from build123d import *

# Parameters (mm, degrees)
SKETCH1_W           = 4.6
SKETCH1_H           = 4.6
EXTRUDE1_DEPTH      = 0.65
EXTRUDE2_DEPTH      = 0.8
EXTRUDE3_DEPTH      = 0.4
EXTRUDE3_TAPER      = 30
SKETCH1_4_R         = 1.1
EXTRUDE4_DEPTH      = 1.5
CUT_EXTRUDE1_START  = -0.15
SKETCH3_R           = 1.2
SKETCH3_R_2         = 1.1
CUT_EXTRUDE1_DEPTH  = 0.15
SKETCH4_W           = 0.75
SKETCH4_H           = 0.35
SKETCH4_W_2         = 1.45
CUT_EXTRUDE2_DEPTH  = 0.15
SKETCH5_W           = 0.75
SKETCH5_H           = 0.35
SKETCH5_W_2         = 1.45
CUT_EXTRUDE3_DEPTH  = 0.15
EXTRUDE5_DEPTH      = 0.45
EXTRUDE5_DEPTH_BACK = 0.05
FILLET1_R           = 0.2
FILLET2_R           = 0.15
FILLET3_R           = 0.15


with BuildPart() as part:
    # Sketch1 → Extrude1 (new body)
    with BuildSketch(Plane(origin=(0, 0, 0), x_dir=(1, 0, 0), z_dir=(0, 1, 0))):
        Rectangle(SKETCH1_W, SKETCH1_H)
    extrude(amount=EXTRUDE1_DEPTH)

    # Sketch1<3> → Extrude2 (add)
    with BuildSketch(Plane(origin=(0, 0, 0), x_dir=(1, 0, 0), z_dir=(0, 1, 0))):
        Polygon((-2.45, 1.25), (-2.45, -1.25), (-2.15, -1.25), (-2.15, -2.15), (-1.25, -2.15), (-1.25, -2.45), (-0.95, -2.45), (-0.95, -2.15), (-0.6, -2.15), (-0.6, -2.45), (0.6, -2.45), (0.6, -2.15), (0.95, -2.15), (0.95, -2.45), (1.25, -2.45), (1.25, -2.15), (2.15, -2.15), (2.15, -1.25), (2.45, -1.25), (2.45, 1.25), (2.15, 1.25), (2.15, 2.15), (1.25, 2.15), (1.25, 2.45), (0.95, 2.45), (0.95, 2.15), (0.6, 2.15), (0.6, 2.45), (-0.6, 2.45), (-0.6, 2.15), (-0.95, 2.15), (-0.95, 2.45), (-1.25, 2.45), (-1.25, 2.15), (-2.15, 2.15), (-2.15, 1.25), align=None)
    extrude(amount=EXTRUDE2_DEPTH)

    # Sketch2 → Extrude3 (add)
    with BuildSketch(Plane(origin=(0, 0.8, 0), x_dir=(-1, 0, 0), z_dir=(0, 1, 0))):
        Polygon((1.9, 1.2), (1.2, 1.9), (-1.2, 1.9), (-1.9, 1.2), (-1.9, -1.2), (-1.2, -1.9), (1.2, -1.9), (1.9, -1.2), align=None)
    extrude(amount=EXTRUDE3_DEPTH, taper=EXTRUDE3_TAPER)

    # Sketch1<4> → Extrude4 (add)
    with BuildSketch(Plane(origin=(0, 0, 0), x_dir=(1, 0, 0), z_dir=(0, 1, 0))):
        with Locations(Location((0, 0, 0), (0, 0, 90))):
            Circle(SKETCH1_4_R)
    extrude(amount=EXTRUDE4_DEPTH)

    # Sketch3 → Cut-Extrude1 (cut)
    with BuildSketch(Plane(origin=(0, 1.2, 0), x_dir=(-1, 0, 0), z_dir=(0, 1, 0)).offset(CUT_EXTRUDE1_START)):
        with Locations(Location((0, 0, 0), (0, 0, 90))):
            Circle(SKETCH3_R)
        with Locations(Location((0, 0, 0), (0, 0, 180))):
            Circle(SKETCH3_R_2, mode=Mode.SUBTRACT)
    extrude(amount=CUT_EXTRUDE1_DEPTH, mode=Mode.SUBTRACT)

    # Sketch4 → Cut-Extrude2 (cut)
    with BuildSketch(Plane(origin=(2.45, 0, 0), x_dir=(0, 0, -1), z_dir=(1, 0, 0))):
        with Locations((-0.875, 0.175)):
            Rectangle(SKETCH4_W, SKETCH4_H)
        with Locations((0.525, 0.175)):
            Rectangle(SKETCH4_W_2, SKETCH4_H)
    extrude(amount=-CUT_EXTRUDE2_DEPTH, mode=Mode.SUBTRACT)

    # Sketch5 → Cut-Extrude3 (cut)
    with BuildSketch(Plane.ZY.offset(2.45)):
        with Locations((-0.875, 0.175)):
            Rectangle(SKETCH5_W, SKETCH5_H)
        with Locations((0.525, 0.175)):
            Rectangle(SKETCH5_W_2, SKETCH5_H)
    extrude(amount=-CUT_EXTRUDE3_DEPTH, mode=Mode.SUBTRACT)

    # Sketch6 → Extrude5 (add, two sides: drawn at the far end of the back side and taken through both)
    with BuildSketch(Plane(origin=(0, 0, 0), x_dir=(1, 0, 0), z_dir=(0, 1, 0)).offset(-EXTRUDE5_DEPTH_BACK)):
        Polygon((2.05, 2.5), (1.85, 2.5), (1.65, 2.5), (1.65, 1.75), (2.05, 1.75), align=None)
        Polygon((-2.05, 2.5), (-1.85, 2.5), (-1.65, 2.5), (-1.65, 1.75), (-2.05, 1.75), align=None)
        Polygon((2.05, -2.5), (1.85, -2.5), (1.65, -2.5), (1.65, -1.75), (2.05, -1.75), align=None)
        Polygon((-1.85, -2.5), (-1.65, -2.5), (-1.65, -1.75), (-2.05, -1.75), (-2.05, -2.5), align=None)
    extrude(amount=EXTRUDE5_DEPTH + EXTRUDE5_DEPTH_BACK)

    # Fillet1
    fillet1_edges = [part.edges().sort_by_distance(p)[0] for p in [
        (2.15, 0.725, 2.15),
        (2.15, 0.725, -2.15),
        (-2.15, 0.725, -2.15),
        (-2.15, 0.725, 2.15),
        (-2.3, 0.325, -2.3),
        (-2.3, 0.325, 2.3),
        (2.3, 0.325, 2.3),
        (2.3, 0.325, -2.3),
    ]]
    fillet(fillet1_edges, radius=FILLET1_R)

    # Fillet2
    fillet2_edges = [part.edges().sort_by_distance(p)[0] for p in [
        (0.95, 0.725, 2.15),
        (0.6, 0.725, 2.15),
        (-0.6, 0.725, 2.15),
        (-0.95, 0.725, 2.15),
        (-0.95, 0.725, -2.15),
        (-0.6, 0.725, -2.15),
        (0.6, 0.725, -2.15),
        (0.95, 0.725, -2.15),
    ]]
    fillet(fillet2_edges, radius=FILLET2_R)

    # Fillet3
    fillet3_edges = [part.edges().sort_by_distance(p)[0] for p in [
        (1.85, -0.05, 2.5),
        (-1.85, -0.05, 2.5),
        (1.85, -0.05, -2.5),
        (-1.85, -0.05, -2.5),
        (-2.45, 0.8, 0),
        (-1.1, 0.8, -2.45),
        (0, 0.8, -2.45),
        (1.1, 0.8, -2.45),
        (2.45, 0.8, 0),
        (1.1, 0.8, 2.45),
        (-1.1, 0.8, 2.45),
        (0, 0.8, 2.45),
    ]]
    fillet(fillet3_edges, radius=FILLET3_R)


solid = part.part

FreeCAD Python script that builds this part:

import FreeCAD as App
import Part
import Sketcher

V = App.Vector
Q = App.Units.Quantity


def edges_at(feature, points):
    """Names of the edges that pass closest to the given points."""
    edges = feature.Shape.Edges
    near = lambda p: min(range(len(edges)), key=lambda i: edges[i].distToShape(Part.Vertex(*p))[0])
    return sorted({f"Edge{near(p) + 1}" for p in points})


def add_polygon(sketch, points):
    """Adds a closed chain of lines whose ends are joined by coincident constraints."""
    first, n = sketch.GeometryCount, len(points)
    for a, b in zip(points, points[1:] + points[:1]):
        sketch.addGeometry(Part.LineSegment(App.Vector(*a, 0), App.Vector(*b, 0)), False)
    for i in range(n):
        sketch.addConstraint(Sketcher.Constraint("Coincident", first + i, 2, first + (i + 1) % n, 1))

doc = App.newDocument("Part")
body = doc.addObject("PartDesign::Body", "Body")

# Sketch on XZ plane
sketch1 = body.newObject("Sketcher::SketchObject", "Sketch")
sketch1.AttachmentSupport = (doc.getObject("XZ_Plane"), [""])
sketch1.MapMode = "FlatFace"
add_polygon(sketch1, [(-2.3, -2.3), (-2.3, 2.3), (2.3, 2.3), (2.3, -2.3)])  # lines 0-3
sketch1.addConstraint(Sketcher.Constraint("Vertical", 0))
sketch1.addConstraint(Sketcher.Constraint("Horizontal", 1))
sketch1.addConstraint(Sketcher.Constraint("Vertical", 2))
sketch1.addConstraint(Sketcher.Constraint("Horizontal", 3))
sketch1.addConstraint(Sketcher.Constraint("Symmetric", 0, 2, 2, 2, -1, 1))
sketch1.addConstraint(Sketcher.Constraint("Equal", 3, 0))
sketch1.addConstraint(Sketcher.Constraint("DistanceX", 1, 1, 1, 2, Q("4.6 mm")))
pad1 = body.newObject("PartDesign::Pad", "Pad")
pad1.Profile = sketch1
pad1.Length = 0.65
pad1.Reversed = True

# Sketch on XZ plane
sketch2 = body.newObject("Sketcher::SketchObject", "Sketch001")
sketch2.AttachmentSupport = (doc.getObject("XZ_Plane"), [""])
sketch2.MapMode = "FlatFace"
add_polygon(sketch2, [(-2.45, -1.25), (-2.45, 1.25), (-2.15, 1.25), (-2.15, 2.15), (-1.25, 2.15), (-1.25, 2.45), (-0.95, 2.45), (-0.95, 2.15), (-0.6, 2.15), (-0.6, 2.45), (0.6, 2.45), (0.6, 2.15), (0.95, 2.15), (0.95, 2.45), (1.25, 2.45), (1.25, 2.15), (2.15, 2.15), (2.15, 1.25), (2.45, 1.25), (2.45, -1.25), (2.15, -1.25), (2.15, -2.15), (1.25, -2.15), (1.25, -2.45), (0.95, -2.45), (0.95, -2.15), (0.6, -2.15), (0.6, -2.45), (-0.6, -2.45), (-0.6, -2.15), (-0.95, -2.15), (-0.95, -2.45), (-1.25, -2.45), (-1.25, -2.15), (-2.15, -2.15), (-2.15, -1.25)])  # lines 0-35
sketch2.addConstraint(Sketcher.Constraint("Vertical", 0))
sketch2.addConstraint(Sketcher.Constraint("Horizontal", 1))
sketch2.addConstraint(Sketcher.Constraint("Vertical", 2))
sketch2.addConstraint(Sketcher.Constraint("Horizontal", 3))
sketch2.addConstraint(Sketcher.Constraint("Vertical", 4))
sketch2.addConstraint(Sketcher.Constraint("Horizontal", 5))
sketch2.addConstraint(Sketcher.Constraint("Vertical", 6))
sketch2.addConstraint(Sketcher.Constraint("Horizontal", 7))
sketch2.addConstraint(Sketcher.Constraint("Vertical", 8))
sketch2.addConstraint(Sketcher.Constraint("Horizontal", 9))
sketch2.addConstraint(Sketcher.Constraint("Vertical", 10))
sketch2.addConstraint(Sketcher.Constraint("Horizontal", 11))
sketch2.addConstraint(Sketcher.Constraint("Vertical", 12))
sketch2.addConstraint(Sketcher.Constraint("Horizontal", 13))
sketch2.addConstraint(Sketcher.Constraint("Vertical", 14))
sketch2.addConstraint(Sketcher.Constraint("Horizontal", 15))
sketch2.addConstraint(Sketcher.Constraint("Vertical", 16))
sketch2.addConstraint(Sketcher.Constraint("Horizontal", 17))
sketch2.addConstraint(Sketcher.Constraint("Vertical", 18))
sketch2.addConstraint(Sketcher.Constraint("Horizontal", 19))
sketch2.addConstraint(Sketcher.Constraint("Vertical", 20))
sketch2.addConstraint(Sketcher.Constraint("Horizontal", 21))
sketch2.addConstraint(Sketcher.Constraint("Vertical", 22))
sketch2.addConstraint(Sketcher.Constraint("Horizontal", 23))
sketch2.addConstraint(Sketcher.Constraint("Vertical", 24))
sketch2.addConstraint(Sketcher.Constraint("Horizontal", 25))
sketch2.addConstraint(Sketcher.Constraint("Vertical", 26))
sketch2.addConstraint(Sketcher.Constraint("Horizontal", 27))
sketch2.addConstraint(Sketcher.Constraint("Vertical", 28))
sketch2.addConstraint(Sketcher.Constraint("Horizontal", 29))
sketch2.addConstraint(Sketcher.Constraint("Vertical", 30))
sketch2.addConstraint(Sketcher.Constraint("Horizontal", 31))
sketch2.addConstraint(Sketcher.Constraint("Vertical", 32))
sketch2.addConstraint(Sketcher.Constraint("Horizontal", 33))
sketch2.addConstraint(Sketcher.Constraint("Vertical", 34))
sketch2.addConstraint(Sketcher.Constraint("Horizontal", 35))
sketch2.addConstraint(Sketcher.Constraint("Symmetric", 0, 2, 18, 2, -1, 1))
sketch2.addConstraint(Sketcher.Constraint("Symmetric", 2, 2, 20, 2, -1, 1))
sketch2.addConstraint(Sketcher.Constraint("Symmetric", 4, 2, 22, 2, -1, 1))
sketch2.addConstraint(Sketcher.Constraint("Symmetric", 6, 2, 24, 2, -1, 1))
sketch2.addConstraint(Sketcher.Constraint("Symmetric", 8, 2, 26, 2, -1, 1))
sketch2.addConstraint(Sketcher.Constraint("Symmetric", 10, 2, 28, 2, -1, 1))
sketch2.addConstraint(Sketcher.Constraint("Symmetric", 12, 2, 30, 2, -1, 1))
sketch2.addConstraint(Sketcher.Constraint("Symmetric", 14, 2, 32, 2, -1, 1))
sketch2.addConstraint(Sketcher.Constraint("Symmetric", 16, 2, 34, 2, -1, 1))
sketch2.addConstraint(Sketcher.Constraint("Symmetric", 7, 2, 10, 2, -2))
sketch2.addConstraint(Sketcher.Constraint("Symmetric", 5, 2, 12, 2, -2))
sketch2.addConstraint(Sketcher.Constraint("Symmetric", 3, 2, 14, 2, -2))
sketch2.addConstraint(Sketcher.Constraint("Symmetric", 1, 2, 16, 2, -2))
sketch2.addConstraint(Sketcher.Constraint("Horizontal", 3, 2, 6, 2))
sketch2.addConstraint(Sketcher.Constraint("Horizontal", 5, 2, 8, 2))
sketch2.addConstraint(Sketcher.Constraint("Equal", 1, 5))
sketch2.addConstraint(Sketcher.Constraint("Equal", 33, 2))
sketch2.addConstraint(Sketcher.Constraint("Equal", 35, 4))
sketch2.addConstraint(Sketcher.Constraint("DistanceX", 1, 1, 1, 2, Q("0.3 mm")))
sketch2.addConstraint(Sketcher.Constraint("DistanceX", 3, 1, 3, 2, Q("0.9 mm")))
sketch2.addConstraint(Sketcher.Constraint("DistanceX", 9, 1, 9, 2, Q("1.2 mm")))
sketch2.addConstraint(Sketcher.Constraint("DistanceY", 0, 1, 0, 2, Q("2.5 mm")))
sketch2.addConstraint(Sketcher.Constraint("DistanceX", 7, 1, 7, 2, Q("0.35 mm")))
pad2 = body.newObject("PartDesign::Pad", "Pad001")
pad2.Profile = sketch2
pad2.Length = 0.8
pad2.Reversed = True

# Sketch on XZ plane
sketch3 = body.newObject("Sketcher::SketchObject", "Sketch002")
sketch3.AttachmentSupport = (doc.getObject("XZ_Plane"), [""])
sketch3.MapMode = "FlatFace"
sketch3.AttachmentOffset = App.Placement(V(0, 0, -0.8), App.Rotation())
add_polygon(sketch3, [(-1.9, 1.2), (-1.2, 1.9), (1.2, 1.9), (1.9, 1.2), (1.9, -1.2), (1.2, -1.9), (-1.2, -1.9), (-1.9, -1.2)])  # lines 0-7
sketch3.addConstraint(Sketcher.Constraint("Horizontal", 1))
sketch3.addConstraint(Sketcher.Constraint("Vertical", 3))
sketch3.addConstraint(Sketcher.Constraint("Horizontal", 5))
sketch3.addConstraint(Sketcher.Constraint("Vertical", 7))
sketch3.addConstraint(Sketcher.Constraint("Symmetric", 0, 2, 4, 2, -1, 1))
sketch3.addConstraint(Sketcher.Constraint("Symmetric", 2, 2, 6, 2, -1, 1))
sketch3.addConstraint(Sketcher.Constraint("Perpendicular", 0, 2))
sketch3.addConstraint(Sketcher.Constraint("Perpendicular", 2, 4))
sketch3.addConstraint(Sketcher.Constraint("Perpendicular", 4, 6))
sketch3.addConstraint(Sketcher.Constraint("Horizontal", 3, 2, 6, 2))
sketch3.addConstraint(Sketcher.Constraint("Vertical", 1, 2, 4, 2))
sketch3.addConstraint(Sketcher.Constraint("Equal", 5, 3))
sketch3.addConstraint(Sketcher.Constraint("DistanceX", 1, 1, 1, 2, Q("2.4 mm")))
sketch3.addConstraint(Sketcher.Constraint("DistanceY", -1, 1, 0, 2, Q("1.9 mm")))
pad3 = body.newObject("PartDesign::Pad", "Pad002")
pad3.Profile = sketch3
pad3.Length = 0.4
pad3.Reversed = True
pad3.TaperAngle = -30

# Sketch on XZ plane
sketch4 = body.newObject("Sketcher::SketchObject", "Sketch003")
sketch4.AttachmentSupport = (doc.getObject("XZ_Plane"), [""])
sketch4.MapMode = "FlatFace"
sketch4.addGeometry(Part.Circle(V(0, 0, 0), V(0, 0, 1), 1.1), False)
sketch4.addConstraint(Sketcher.Constraint("Coincident", 0, 3, -1, 1))
sketch4.addConstraint(Sketcher.Constraint("Diameter", 0, Q("2.2 mm")))
pad4 = body.newObject("PartDesign::Pad", "Pad003")
pad4.Profile = sketch4
pad4.Length = 1.5
pad4.Reversed = True

# Sketch on XZ plane
sketch5 = body.newObject("Sketcher::SketchObject", "Sketch004")
sketch5.AttachmentSupport = (doc.getObject("XZ_Plane"), [""])
sketch5.MapMode = "FlatFace"
sketch5.AttachmentOffset = App.Placement(V(0, 0, -1.05), App.Rotation())
sketch5.addGeometry(Part.Circle(V(0, 0, 0), V(0, 0, 1), 1.2), False)
sketch5.addGeometry(Part.Circle(V(0, 0, 0), V(0, 0, 1), 1.1), False)
sketch5.addConstraint(Sketcher.Constraint("Coincident", 0, 3, -1, 1))
sketch5.addConstraint(Sketcher.Constraint("Coincident", 1, 3, -1, 1))
sketch5.addConstraint(Sketcher.Constraint("Diameter", 0, Q("2.4 mm")))
sketch5.addConstraint(Sketcher.Constraint("Diameter", 1, Q("2.2 mm")))
pocket1 = body.newObject("PartDesign::Pocket", "Pocket")
pocket1.Profile = sketch5
pocket1.Length = 0.15

# Sketch on YZ plane
sketch6 = body.newObject("Sketcher::SketchObject", "Sketch005")
sketch6.AttachmentSupport = (doc.getObject("YZ_Plane"), [""])
sketch6.MapMode = "FlatFace"
sketch6.AttachmentOffset = App.Placement(V(0, 0, 2.45), App.Rotation())
add_polygon(sketch6, [(0.35, 1.25), (0, 1.25), (0, 0.5), (0.35, 0.5)])  # lines 0-3
add_polygon(sketch6, [(0.35, 0.2), (0, 0.2), (0, -1.25), (0.35, -1.25)])  # lines 4-7
sketch6.addConstraint(Sketcher.Constraint("Horizontal", 0))
sketch6.addConstraint(Sketcher.Constraint("Vertical", 1))
sketch6.addConstraint(Sketcher.Constraint("Horizontal", 2))
sketch6.addConstraint(Sketcher.Constraint("Vertical", 3))
sketch6.addConstraint(Sketcher.Constraint("Horizontal", 4))
sketch6.addConstraint(Sketcher.Constraint("Vertical", 5))
sketch6.addConstraint(Sketcher.Constraint("Horizontal", 6))
sketch6.addConstraint(Sketcher.Constraint("Vertical", 7))
sketch6.addConstraint(Sketcher.Constraint("Symmetric", 0, 2, 5, 2, -1, 1))
sketch6.addConstraint(Sketcher.Constraint("PointOnObject", 0, 2, -2))
sketch6.addConstraint(Sketcher.Constraint("Vertical", 3, 2, 6, 2))
sketch6.addConstraint(Sketcher.Constraint("DistanceX", 0, 2, 0, 1, Q("0.35 mm")))
sketch6.addConstraint(Sketcher.Constraint("DistanceY", 1, 2, 1, 1, Q("0.75 mm")))
sketch6.addConstraint(Sketcher.Constraint("DistanceY", 5, 2, 5, 1, Q("1.45 mm")))
sketch6.addConstraint(Sketcher.Constraint("DistanceY", -1, 1, 1, 2, Q("0.5 mm")))
pocket2 = body.newObject("PartDesign::Pocket", "Pocket001")
pocket2.Profile = sketch6
pocket2.Length = 0.15

# Sketch on YZ plane
sketch7 = body.newObject("Sketcher::SketchObject", "Sketch006")
sketch7.AttachmentSupport = (doc.getObject("YZ_Plane"), [""])
sketch7.MapMode = "FlatFace"
sketch7.AttachmentOffset = App.Placement(V(0, 0, -2.45), App.Rotation())
add_polygon(sketch7, [(0.35, -1.25), (0, -1.25), (0, -0.5), (0.35, -0.5)])  # lines 0-3
add_polygon(sketch7, [(0.35, -0.2), (0, -0.2), (0, 1.25), (0.35, 1.25)])  # lines 4-7
sketch7.addConstraint(Sketcher.Constraint("Horizontal", 0))
sketch7.addConstraint(Sketcher.Constraint("Vertical", 1))
sketch7.addConstraint(Sketcher.Constraint("Horizontal", 2))
sketch7.addConstraint(Sketcher.Constraint("Vertical", 3))
sketch7.addConstraint(Sketcher.Constraint("Horizontal", 4))
sketch7.addConstraint(Sketcher.Constraint("Vertical", 5))
sketch7.addConstraint(Sketcher.Constraint("Horizontal", 6))
sketch7.addConstraint(Sketcher.Constraint("Vertical", 7))
sketch7.addConstraint(Sketcher.Constraint("Symmetric", 0, 2, 5, 2, -1, 1))
sketch7.addConstraint(Sketcher.Constraint("PointOnObject", 0, 2, -2))
sketch7.addConstraint(Sketcher.Constraint("Vertical", 3, 2, 6, 2))
sketch7.addConstraint(Sketcher.Constraint("DistanceX", 0, 2, 0, 1, Q("0.35 mm")))
sketch7.addConstraint(Sketcher.Constraint("DistanceY", 1, 1, 1, 2, Q("0.75 mm")))
sketch7.addConstraint(Sketcher.Constraint("DistanceY", 5, 1, 5, 2, Q("1.45 mm")))
sketch7.addConstraint(Sketcher.Constraint("DistanceY", 1, 2, -1, 1, Q("0.5 mm")))
pocket3 = body.newObject("PartDesign::Pocket", "Pocket002")
pocket3.Profile = sketch7
pocket3.Length = 0.15
pocket3.Reversed = True

# Sketch on XZ plane
sketch8 = body.newObject("Sketcher::SketchObject", "Sketch007")
sketch8.AttachmentSupport = (doc.getObject("XZ_Plane"), [""])
sketch8.MapMode = "FlatFace"
add_polygon(sketch8, [(2.05, -2.5), (1.65, -2.5), (1.65, -1.75), (2.05, -1.75)])  # lines 0-3
add_polygon(sketch8, [(-1.65, -2.5), (-2.05, -2.5), (-2.05, -1.75), (-1.65, -1.75)])  # lines 4-7
add_polygon(sketch8, [(1.65, 2.5), (2.05, 2.5), (2.05, 1.75), (1.65, 1.75)])  # lines 8-11
add_polygon(sketch8, [(-1.65, 2.5), (-1.65, 1.75), (-2.05, 1.75), (-2.05, 2.5)])  # lines 12-15
sketch8.addConstraint(Sketcher.Constraint("Horizontal", 0))
sketch8.addConstraint(Sketcher.Constraint("Vertical", 1))
sketch8.addConstraint(Sketcher.Constraint("Horizontal", 2))
sketch8.addConstraint(Sketcher.Constraint("Vertical", 3))
sketch8.addConstraint(Sketcher.Constraint("Horizontal", 4))
sketch8.addConstraint(Sketcher.Constraint("Vertical", 5))
sketch8.addConstraint(Sketcher.Constraint("Horizontal", 6))
sketch8.addConstraint(Sketcher.Constraint("Vertical", 7))
sketch8.addConstraint(Sketcher.Constraint("Horizontal", 8))
sketch8.addConstraint(Sketcher.Constraint("Vertical", 9))
sketch8.addConstraint(Sketcher.Constraint("Horizontal", 10))
sketch8.addConstraint(Sketcher.Constraint("Vertical", 11))
sketch8.addConstraint(Sketcher.Constraint("Vertical", 12))
sketch8.addConstraint(Sketcher.Constraint("Horizontal", 13))
sketch8.addConstraint(Sketcher.Constraint("Vertical", 14))
sketch8.addConstraint(Sketcher.Constraint("Horizontal", 15))
sketch8.addConstraint(Sketcher.Constraint("Symmetric", 4, 2, 8, 2, -1, 1))
sketch8.addConstraint(Sketcher.Constraint("Symmetric", 6, 2, 10, 2, -1, 1))
sketch8.addConstraint(Sketcher.Constraint("Symmetric", 1, 2, 12, 2, -1, 1))
sketch8.addConstraint(Sketcher.Constraint("Symmetric", 3, 2, 14, 2, -1, 1))
sketch8.addConstraint(Sketcher.Constraint("Symmetric", 3, 2, 4, 2, -2))
sketch8.addConstraint(Sketcher.Constraint("Symmetric", 1, 2, 6, 2, -2))
sketch8.addConstraint(Sketcher.Constraint("DistanceX", 0, 2, 0, 1, Q("0.4 mm")))
sketch8.addConstraint(Sketcher.Constraint("DistanceY", 3, 2, 8, 2, Q("5 mm")))
sketch8.addConstraint(Sketcher.Constraint("DistanceY", 1, 1, 1, 2, Q("0.75 mm")))
sketch8.addConstraint(Sketcher.Constraint("DistanceX", 4, 2, 0, 2, Q("3.7 mm")))
pad5 = body.newObject("PartDesign::Pad", "Pad004")
pad5.Profile = sketch8
pad5.Type = "TwoLengths"
pad5.Length = 0.45
pad5.Length2 = 0.05
pad5.Reversed = True
doc.recompute()

fillet = body.newObject("PartDesign::Fillet", "Fillet")
fillet.Base = (pad5, edges_at(pad5, [
    (2.15, 0.725, 2.15),
    (2.15, 0.725, -2.15),
    (-2.15, 0.725, -2.15),
    (-2.15, 0.725, 2.15),
    (-2.3, 0.325, -2.3),
    (-2.3, 0.325, 2.3),
    (2.3, 0.325, 2.3),
    (2.3, 0.325, -2.3),
]))
fillet.Radius = 0.2
doc.recompute()

fillet2 = body.newObject("PartDesign::Fillet", "Fillet001")
fillet2.Base = (fillet, edges_at(fillet, [
    (0.95, 0.725, 2.15),
    (0.6, 0.725, 2.15),
    (-0.6, 0.725, 2.15),
    (-0.95, 0.725, 2.15),
    (-0.95, 0.725, -2.15),
    (-0.6, 0.725, -2.15),
    (0.6, 0.725, -2.15),
    (0.95, 0.725, -2.15),
]))
fillet2.Radius = 0.15
doc.recompute()

fillet3 = body.newObject("PartDesign::Fillet", "Fillet002")
fillet3.Base = (fillet2, edges_at(fillet2, [
    (1.85, -0.05, 2.5),
    (-1.85, -0.05, 2.5),
    (1.85, -0.05, -2.5),
    (-1.85, -0.05, -2.5),
    (-2.45, 0.8, 0),
    (-1.1, 0.8, -2.45),
    (0, 0.8, -2.45),
    (1.1, 0.8, -2.45),
    (2.45, 0.8, 0),
    (1.1, 0.8, 2.45),
    (-1.1, 0.8, 2.45),
    (0, 0.8, 2.45),
]))
fillet3.Radius = 0.15

doc.recompute()
